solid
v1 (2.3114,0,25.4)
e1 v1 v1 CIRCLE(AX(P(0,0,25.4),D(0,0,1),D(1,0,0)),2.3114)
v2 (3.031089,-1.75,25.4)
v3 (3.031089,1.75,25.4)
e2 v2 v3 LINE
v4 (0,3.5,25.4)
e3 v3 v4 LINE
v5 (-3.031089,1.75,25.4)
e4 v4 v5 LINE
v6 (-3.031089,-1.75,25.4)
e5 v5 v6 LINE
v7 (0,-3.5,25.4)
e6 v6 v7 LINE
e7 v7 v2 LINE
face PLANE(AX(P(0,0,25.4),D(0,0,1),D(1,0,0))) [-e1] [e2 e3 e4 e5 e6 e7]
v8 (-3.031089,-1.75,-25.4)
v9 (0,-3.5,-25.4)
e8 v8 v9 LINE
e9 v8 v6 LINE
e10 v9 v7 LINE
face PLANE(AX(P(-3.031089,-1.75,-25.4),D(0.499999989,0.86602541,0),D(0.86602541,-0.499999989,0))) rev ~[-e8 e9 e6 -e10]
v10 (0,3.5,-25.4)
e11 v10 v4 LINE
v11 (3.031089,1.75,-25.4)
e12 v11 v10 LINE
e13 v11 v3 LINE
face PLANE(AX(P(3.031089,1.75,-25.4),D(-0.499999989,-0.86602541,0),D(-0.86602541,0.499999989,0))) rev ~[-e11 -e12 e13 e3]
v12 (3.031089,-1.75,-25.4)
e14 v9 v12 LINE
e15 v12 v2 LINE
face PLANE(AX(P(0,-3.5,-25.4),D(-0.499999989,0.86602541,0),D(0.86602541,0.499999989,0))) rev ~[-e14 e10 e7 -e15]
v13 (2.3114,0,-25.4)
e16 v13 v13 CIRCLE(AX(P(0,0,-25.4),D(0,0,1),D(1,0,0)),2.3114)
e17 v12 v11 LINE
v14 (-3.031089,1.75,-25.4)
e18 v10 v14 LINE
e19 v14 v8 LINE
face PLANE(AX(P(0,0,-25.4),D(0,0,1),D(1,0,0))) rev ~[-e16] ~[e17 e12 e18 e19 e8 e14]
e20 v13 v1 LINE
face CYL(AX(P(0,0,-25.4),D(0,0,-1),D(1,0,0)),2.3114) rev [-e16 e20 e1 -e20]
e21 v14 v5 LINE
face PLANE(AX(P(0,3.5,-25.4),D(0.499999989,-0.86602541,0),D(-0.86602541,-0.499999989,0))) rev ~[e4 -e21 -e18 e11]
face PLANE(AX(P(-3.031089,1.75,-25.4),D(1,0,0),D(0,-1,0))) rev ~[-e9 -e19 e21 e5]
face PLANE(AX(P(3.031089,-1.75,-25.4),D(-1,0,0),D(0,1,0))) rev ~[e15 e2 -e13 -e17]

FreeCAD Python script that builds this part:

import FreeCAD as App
import Part
import Sketcher
from FreeCAD import Vector
Q = App.Units.Quantity


def add_polygon(sketch, points):
    """Adds a closed chain of lines whose ends are joined by coincident constraints."""
    first, n = sketch.GeometryCount, len(points)
    for a, b in zip(points, points[1:] + points[:1]):
        sketch.addGeometry(Part.LineSegment(App.Vector(*a, 0), App.Vector(*b, 0)), False)
    for i in range(n):
        sketch.addConstraint(Sketcher.Constraint("Coincident", first + i, 2, first + (i + 1) % n, 1))

doc = App.newDocument("Part")
body = doc.addObject("PartDesign::Body", "Body")

# Sketch on XY plane
sketch1 = body.newObject("Sketcher::SketchObject", "Sketch")
sketch1.AttachmentSupport = (doc.getObject("XY_Plane"), [""])
sketch1.MapMode = "FlatFace"
add_polygon(sketch1, [(3, 1.8), (0, 3.5), (-3, 1.8), (-3, -1.8), (0, -3.5), (3, -1.8)])  # lines 0-5
sketch1.addGeometry(Part.Circle(Vector(0, 0, 0), Vector(0, 0, 1), 2.3), False)  # 6
sketch1.addConstraint([
    Sketcher.Constraint("Vertical", 2),
    Sketcher.Constraint("Vertical", 5),
    Sketcher.Constraint("Coincident", 6, 3, -1, 1),
    Sketcher.Constraint("Symmetric", 0, 2, 3, 2, -1, 1),
    Sketcher.Constraint("Symmetric", 1, 2, 4, 2, -1, 1),
    Sketcher.Constraint("PointOnObject", 0, 2, -2),
    Sketcher.Constraint("Parallel", 0, 3),
    Sketcher.Constraint("Horizontal", 2, 2, 4, 2),
    Sketcher.Constraint("Diameter", 6, Q("0.182 in")),
    Sketcher.Constraint("Angle", 0, Q("150.000001 deg")),
    Sketcher.Constraint("DistanceY", 2, 2, 2, 1, 3.5),
    Sketcher.Constraint("Distance", 0, 3.5),
])
pad1 = body.newObject("PartDesign::Pad", "Pad")
pad1.Profile = sketch1
pad1.Length = Q("2 in")
body2 = doc.addObject("PartDesign::Body", "Body001")
doc.recompute()

body.Placement = App.Placement(Vector(0, 0, -25.4), App.Rotation(Vector(0, 0, 1), 0))
boolean = body2.newObject("PartDesign::Boolean", "Boolean")
boolean.Type = "Fuse"
boolean.addObjects([body])

doc.recompute()
